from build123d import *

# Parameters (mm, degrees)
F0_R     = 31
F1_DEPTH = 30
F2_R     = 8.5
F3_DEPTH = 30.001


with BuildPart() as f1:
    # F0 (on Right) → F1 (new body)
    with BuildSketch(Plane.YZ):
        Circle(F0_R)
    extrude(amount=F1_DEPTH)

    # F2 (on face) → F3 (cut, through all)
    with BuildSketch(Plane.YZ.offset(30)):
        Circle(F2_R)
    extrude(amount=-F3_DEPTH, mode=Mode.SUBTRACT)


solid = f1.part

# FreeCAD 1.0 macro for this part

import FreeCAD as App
import Part
import Sketcher
Q = App.Units.Quantity

doc = App.newDocument("Part")
body = doc.addObject("PartDesign::Body", "Body")

sketch1 = body.newObject("Sketcher::SketchObject", "Sketch")
sketch1.AttachmentSupport = (doc.getObject("YZ_Plane"), [""])
sketch1.MapMode = "FlatFace"
sketch1.addGeometry(Part.Circle(App.Vector(0, 0, 0), App.Vector(0, 0, 1), 31), False)
sketch1.addConstraint(Sketcher.Constraint("Coincident", 0, 3, -1, 1))
sketch1.addConstraint(Sketcher.Constraint("Diameter", 0, Q("62 mm")))
pad1 = body.newObject("PartDesign::Pad", "Pad")
pad1.Profile = sketch1
pad1.Length = 30

sketch2 = body.newObject("Sketcher::SketchObject", "Sketch001")
sketch2.AttachmentSupport = (doc.getObject("YZ_Plane"), [""])
sketch2.MapMode = "FlatFace"
sketch2.AttachmentOffset = App.Placement(App.Vector(0, 0, 30), App.Rotation())
sketch2.addGeometry(Part.Circle(App.Vector(0, 0, 0), App.Vector(0, 0, 1), 8), False)
sketch2.addConstraint(Sketcher.Constraint("Coincident", 0, 3, -1, 1))
sketch2.addConstraint(Sketcher.Constraint("Diameter", 0, Q("17 mm")))
pocket1 = body.newObject("PartDesign::Pocket", "Pocket")
pocket1.Profile = sketch2
pocket1.Type = "ThroughAll"

doc.recompute()
